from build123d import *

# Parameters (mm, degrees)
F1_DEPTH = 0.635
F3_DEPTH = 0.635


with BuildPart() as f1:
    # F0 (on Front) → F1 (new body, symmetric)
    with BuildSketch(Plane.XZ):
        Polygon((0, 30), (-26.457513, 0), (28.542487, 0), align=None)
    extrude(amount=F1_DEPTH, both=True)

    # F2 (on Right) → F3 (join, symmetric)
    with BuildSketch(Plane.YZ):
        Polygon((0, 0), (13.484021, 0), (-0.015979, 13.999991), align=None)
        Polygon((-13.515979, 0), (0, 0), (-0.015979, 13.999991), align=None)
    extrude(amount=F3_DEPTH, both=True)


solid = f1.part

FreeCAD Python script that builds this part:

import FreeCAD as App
import Part
import Sketcher

V = App.Vector


def add_polygon(sketch, points):
    """Adds a closed chain of lines whose ends are joined by coincident constraints."""
    first, n = sketch.GeometryCount, len(points)
    for a, b in zip(points, points[1:] + points[:1]):
        sketch.addGeometry(Part.LineSegment(App.Vector(*a, 0), App.Vector(*b, 0)), False)
    for i in range(n):
        sketch.addConstraint(Sketcher.Constraint("Coincident", first + i, 2, first + (i + 1) % n, 1))

doc = App.newDocument("Part")
body = doc.addObject("PartDesign::Body", "Body")

sketch1 = body.newObject("Sketcher::SketchObject", "Sketch")
sketch1.AttachmentSupport = (doc.getObject("XZ_Plane"), [""])
sketch1.MapMode = "FlatFace"
add_polygon(sketch1, [(0, 30), (-26.457513, 0), (28.542487, 0)])
sketch1.addConstraint([
    Sketcher.Constraint("Horizontal", 1),
    Sketcher.Constraint("PointOnObject", 0, 2, -1),
    Sketcher.Constraint("PointOnObject", 2, 2, -2),
    Sketcher.Constraint("DistanceX", 1, 1, 1, 2, 55.0),
    Sketcher.Constraint("Distance", 0, 40.0),
    Sketcher.Constraint("DistanceY", -1, 1, 2, 2, 30.0),
])
pad1 = body.newObject("PartDesign::Pad", "Pad")
pad1.Profile = sketch1
pad1.Length = 1.27
pad1.Midplane = True

sketch2 = body.newObject("Sketcher::SketchObject", "Sketch001")
sketch2.AttachmentSupport = (doc.getObject("YZ_Plane"), [""])
sketch2.MapMode = "FlatFace"
add_polygon(sketch2, [(13.484021, 0), (-0.015979, 13.999991), (-13.515979, 0)])
sketch2.addConstraint([
    Sketcher.Constraint("Horizontal", 2),
    Sketcher.Constraint("PointOnObject", 1, 2, -1),
    Sketcher.Constraint("Equal", 0, 1),
    Sketcher.Constraint("DistanceX", 2, 1, 2, 2, 27.0),
    Sketcher.Constraint("DistanceX", 0, 2, -1, 1, 0.015979),
    Sketcher.Constraint("DistanceY", -1, 1, 0, 2, 13.999991),
])
pad2 = body.newObject("PartDesign::Pad", "Pad001")
pad2.Profile = sketch2
pad2.Length = 1.27
pad2.Midplane = True

doc.recompute()
